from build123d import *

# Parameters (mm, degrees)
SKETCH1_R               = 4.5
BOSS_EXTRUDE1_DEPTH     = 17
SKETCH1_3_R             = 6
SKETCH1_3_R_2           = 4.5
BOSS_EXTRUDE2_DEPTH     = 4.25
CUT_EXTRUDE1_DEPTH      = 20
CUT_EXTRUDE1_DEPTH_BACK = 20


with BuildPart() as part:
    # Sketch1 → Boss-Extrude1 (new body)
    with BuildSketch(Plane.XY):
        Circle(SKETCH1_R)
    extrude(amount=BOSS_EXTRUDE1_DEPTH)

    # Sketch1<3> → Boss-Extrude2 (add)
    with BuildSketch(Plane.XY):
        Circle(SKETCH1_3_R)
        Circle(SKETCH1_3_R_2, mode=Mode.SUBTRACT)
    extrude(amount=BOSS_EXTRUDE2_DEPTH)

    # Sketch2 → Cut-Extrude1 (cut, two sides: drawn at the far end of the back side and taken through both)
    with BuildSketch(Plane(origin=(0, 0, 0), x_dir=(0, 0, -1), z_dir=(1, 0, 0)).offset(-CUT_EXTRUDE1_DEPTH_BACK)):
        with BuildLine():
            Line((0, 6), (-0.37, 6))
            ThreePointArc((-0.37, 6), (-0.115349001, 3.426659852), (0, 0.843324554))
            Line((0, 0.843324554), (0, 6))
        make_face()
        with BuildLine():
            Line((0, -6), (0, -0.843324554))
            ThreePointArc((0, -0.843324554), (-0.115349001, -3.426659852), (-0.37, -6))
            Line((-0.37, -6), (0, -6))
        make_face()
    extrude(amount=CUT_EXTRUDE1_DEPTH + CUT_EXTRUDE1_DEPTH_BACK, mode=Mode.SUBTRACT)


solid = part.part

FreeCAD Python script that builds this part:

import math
import FreeCAD as App
import Part
import Sketcher

doc = App.newDocument("Part")
body = doc.addObject("PartDesign::Body", "Body")

# Sketch on XY plane
sketch1 = doc.addObject("Sketcher::SketchObject", "Sketch")
body.addObject(sketch1)
sketch1.AttachmentSupport = (doc.XY_Plane, [""])
sketch1.MapMode = "FlatFace"
sketch1.addGeometry(Part.Circle(App.Vector(0, 0, 0), App.Vector(0, 0, 1), 4.5), False)
sketch1.addConstraint(Sketcher.Constraint("Coincident", 0, 3, -1, 1))
sketch1.addConstraint(Sketcher.Constraint("Diameter", 0, 9.0))
pad1 = doc.addObject("PartDesign::Pad", "Pad")
body.addObject(pad1)
pad1.Profile = sketch1
pad1.Length = 17

# Sketch on XY plane
sketch2 = doc.addObject("Sketcher::SketchObject", "Sketch001")
body.addObject(sketch2)
sketch2.AttachmentSupport = (doc.XY_Plane, [""])
sketch2.MapMode = "FlatFace"
sketch2.addGeometry(Part.Circle(App.Vector(0, 0, 0), App.Vector(0, 0, 1), 6), False)
sketch2.addGeometry(Part.Circle(App.Vector(0, 0, 0), App.Vector(0, 0, 1), 4.5), False)
sketch2.addConstraint(Sketcher.Constraint("Coincident", 0, 3, -1, 1))
sketch2.addConstraint(Sketcher.Constraint("Coincident", 1, 3, -1, 1))
sketch2.addConstraint(Sketcher.Constraint("Diameter", 0, 12.0))
sketch2.addConstraint(Sketcher.Constraint("Diameter", 1, 9.0))
pad2 = doc.addObject("PartDesign::Pad", "Pad001")
body.addObject(pad2)
pad2.Profile = sketch2
pad2.Length = 4.25

# Sketch on YZ plane
sketch3 = doc.addObject("Sketcher::SketchObject", "Sketch002")
body.addObject(sketch3)
sketch3.AttachmentSupport = (doc.YZ_Plane, [""])
sketch3.MapMode = "FlatFace"
sketch3.addGeometry(Part.LineSegment(App.Vector(6, 0, 0), App.Vector(6, 0.37, 0)), False)
sketch3.addGeometry(Part.ArcOfCircle(Part.Circle(App.Vector(0, 47.87, 0), App.Vector(0, 0, 1), 47.88), math.radians(-88.99), math.radians(-82.8)), False)
sketch3.addGeometry(Part.LineSegment(App.Vector(0.84, 0, 0), App.Vector(6, 0, 0)), False)
sketch3.addGeometry(Part.LineSegment(App.Vector(-6, 0, 0), App.Vector(-0.84, 0, 0)), False)
sketch3.addGeometry(Part.ArcOfCircle(Part.Circle(App.Vector(0, 47.87, 0), App.Vector(0, 0, 1), 47.88), math.radians(-97.2), math.radians(-91.01)), False)
sketch3.addGeometry(Part.LineSegment(App.Vector(-6, 0.37, 0), App.Vector(-6, 0, 0)), False)
sketch3.addConstraint(Sketcher.Constraint("Coincident", 0, 2, 1, 2))
sketch3.addConstraint(Sketcher.Constraint("Coincident", 1, 1, 2, 1))
sketch3.addConstraint(Sketcher.Constraint("Coincident", 2, 2, 0, 1))
sketch3.addConstraint(Sketcher.Constraint("Coincident", 3, 2, 4, 2))
sketch3.addConstraint(Sketcher.Constraint("Coincident", 4, 1, 5, 1))
sketch3.addConstraint(Sketcher.Constraint("Coincident", 5, 2, 3, 1))
sketch3.addConstraint(Sketcher.Constraint("Vertical", 0))
sketch3.addConstraint(Sketcher.Constraint("Horizontal", 2))
sketch3.addConstraint(Sketcher.Constraint("Horizontal", 3))
sketch3.addConstraint(Sketcher.Constraint("Vertical", 5))
sketch3.addConstraint(Sketcher.Constraint("Coincident", 4, 3, 1, 3))
sketch3.addConstraint(Sketcher.Constraint("Equal", 1, 4))
sketch3.addConstraint(Sketcher.Constraint("Symmetric", 1, 1, 3, 2, -1, 1))
sketch3.addConstraint(Sketcher.Constraint("Symmetric", 0, 2, 4, 1, -2))
sketch3.addConstraint(Sketcher.Constraint("Radius", 1, 47.88))
sketch3.addConstraint(Sketcher.Constraint("DistanceX", -1, 1, 0, 2, 6.0))
sketch3.addConstraint(Sketcher.Constraint("DistanceY", 0, 1, 0, 2, 0.37))
pocket1 = doc.addObject("PartDesign::Pocket", "Pocket")
body.addObject(pocket1)
pocket1.Profile = sketch3
pocket1.Type = "ThroughAll"
pocket1.Midplane = True

doc.recompute()
